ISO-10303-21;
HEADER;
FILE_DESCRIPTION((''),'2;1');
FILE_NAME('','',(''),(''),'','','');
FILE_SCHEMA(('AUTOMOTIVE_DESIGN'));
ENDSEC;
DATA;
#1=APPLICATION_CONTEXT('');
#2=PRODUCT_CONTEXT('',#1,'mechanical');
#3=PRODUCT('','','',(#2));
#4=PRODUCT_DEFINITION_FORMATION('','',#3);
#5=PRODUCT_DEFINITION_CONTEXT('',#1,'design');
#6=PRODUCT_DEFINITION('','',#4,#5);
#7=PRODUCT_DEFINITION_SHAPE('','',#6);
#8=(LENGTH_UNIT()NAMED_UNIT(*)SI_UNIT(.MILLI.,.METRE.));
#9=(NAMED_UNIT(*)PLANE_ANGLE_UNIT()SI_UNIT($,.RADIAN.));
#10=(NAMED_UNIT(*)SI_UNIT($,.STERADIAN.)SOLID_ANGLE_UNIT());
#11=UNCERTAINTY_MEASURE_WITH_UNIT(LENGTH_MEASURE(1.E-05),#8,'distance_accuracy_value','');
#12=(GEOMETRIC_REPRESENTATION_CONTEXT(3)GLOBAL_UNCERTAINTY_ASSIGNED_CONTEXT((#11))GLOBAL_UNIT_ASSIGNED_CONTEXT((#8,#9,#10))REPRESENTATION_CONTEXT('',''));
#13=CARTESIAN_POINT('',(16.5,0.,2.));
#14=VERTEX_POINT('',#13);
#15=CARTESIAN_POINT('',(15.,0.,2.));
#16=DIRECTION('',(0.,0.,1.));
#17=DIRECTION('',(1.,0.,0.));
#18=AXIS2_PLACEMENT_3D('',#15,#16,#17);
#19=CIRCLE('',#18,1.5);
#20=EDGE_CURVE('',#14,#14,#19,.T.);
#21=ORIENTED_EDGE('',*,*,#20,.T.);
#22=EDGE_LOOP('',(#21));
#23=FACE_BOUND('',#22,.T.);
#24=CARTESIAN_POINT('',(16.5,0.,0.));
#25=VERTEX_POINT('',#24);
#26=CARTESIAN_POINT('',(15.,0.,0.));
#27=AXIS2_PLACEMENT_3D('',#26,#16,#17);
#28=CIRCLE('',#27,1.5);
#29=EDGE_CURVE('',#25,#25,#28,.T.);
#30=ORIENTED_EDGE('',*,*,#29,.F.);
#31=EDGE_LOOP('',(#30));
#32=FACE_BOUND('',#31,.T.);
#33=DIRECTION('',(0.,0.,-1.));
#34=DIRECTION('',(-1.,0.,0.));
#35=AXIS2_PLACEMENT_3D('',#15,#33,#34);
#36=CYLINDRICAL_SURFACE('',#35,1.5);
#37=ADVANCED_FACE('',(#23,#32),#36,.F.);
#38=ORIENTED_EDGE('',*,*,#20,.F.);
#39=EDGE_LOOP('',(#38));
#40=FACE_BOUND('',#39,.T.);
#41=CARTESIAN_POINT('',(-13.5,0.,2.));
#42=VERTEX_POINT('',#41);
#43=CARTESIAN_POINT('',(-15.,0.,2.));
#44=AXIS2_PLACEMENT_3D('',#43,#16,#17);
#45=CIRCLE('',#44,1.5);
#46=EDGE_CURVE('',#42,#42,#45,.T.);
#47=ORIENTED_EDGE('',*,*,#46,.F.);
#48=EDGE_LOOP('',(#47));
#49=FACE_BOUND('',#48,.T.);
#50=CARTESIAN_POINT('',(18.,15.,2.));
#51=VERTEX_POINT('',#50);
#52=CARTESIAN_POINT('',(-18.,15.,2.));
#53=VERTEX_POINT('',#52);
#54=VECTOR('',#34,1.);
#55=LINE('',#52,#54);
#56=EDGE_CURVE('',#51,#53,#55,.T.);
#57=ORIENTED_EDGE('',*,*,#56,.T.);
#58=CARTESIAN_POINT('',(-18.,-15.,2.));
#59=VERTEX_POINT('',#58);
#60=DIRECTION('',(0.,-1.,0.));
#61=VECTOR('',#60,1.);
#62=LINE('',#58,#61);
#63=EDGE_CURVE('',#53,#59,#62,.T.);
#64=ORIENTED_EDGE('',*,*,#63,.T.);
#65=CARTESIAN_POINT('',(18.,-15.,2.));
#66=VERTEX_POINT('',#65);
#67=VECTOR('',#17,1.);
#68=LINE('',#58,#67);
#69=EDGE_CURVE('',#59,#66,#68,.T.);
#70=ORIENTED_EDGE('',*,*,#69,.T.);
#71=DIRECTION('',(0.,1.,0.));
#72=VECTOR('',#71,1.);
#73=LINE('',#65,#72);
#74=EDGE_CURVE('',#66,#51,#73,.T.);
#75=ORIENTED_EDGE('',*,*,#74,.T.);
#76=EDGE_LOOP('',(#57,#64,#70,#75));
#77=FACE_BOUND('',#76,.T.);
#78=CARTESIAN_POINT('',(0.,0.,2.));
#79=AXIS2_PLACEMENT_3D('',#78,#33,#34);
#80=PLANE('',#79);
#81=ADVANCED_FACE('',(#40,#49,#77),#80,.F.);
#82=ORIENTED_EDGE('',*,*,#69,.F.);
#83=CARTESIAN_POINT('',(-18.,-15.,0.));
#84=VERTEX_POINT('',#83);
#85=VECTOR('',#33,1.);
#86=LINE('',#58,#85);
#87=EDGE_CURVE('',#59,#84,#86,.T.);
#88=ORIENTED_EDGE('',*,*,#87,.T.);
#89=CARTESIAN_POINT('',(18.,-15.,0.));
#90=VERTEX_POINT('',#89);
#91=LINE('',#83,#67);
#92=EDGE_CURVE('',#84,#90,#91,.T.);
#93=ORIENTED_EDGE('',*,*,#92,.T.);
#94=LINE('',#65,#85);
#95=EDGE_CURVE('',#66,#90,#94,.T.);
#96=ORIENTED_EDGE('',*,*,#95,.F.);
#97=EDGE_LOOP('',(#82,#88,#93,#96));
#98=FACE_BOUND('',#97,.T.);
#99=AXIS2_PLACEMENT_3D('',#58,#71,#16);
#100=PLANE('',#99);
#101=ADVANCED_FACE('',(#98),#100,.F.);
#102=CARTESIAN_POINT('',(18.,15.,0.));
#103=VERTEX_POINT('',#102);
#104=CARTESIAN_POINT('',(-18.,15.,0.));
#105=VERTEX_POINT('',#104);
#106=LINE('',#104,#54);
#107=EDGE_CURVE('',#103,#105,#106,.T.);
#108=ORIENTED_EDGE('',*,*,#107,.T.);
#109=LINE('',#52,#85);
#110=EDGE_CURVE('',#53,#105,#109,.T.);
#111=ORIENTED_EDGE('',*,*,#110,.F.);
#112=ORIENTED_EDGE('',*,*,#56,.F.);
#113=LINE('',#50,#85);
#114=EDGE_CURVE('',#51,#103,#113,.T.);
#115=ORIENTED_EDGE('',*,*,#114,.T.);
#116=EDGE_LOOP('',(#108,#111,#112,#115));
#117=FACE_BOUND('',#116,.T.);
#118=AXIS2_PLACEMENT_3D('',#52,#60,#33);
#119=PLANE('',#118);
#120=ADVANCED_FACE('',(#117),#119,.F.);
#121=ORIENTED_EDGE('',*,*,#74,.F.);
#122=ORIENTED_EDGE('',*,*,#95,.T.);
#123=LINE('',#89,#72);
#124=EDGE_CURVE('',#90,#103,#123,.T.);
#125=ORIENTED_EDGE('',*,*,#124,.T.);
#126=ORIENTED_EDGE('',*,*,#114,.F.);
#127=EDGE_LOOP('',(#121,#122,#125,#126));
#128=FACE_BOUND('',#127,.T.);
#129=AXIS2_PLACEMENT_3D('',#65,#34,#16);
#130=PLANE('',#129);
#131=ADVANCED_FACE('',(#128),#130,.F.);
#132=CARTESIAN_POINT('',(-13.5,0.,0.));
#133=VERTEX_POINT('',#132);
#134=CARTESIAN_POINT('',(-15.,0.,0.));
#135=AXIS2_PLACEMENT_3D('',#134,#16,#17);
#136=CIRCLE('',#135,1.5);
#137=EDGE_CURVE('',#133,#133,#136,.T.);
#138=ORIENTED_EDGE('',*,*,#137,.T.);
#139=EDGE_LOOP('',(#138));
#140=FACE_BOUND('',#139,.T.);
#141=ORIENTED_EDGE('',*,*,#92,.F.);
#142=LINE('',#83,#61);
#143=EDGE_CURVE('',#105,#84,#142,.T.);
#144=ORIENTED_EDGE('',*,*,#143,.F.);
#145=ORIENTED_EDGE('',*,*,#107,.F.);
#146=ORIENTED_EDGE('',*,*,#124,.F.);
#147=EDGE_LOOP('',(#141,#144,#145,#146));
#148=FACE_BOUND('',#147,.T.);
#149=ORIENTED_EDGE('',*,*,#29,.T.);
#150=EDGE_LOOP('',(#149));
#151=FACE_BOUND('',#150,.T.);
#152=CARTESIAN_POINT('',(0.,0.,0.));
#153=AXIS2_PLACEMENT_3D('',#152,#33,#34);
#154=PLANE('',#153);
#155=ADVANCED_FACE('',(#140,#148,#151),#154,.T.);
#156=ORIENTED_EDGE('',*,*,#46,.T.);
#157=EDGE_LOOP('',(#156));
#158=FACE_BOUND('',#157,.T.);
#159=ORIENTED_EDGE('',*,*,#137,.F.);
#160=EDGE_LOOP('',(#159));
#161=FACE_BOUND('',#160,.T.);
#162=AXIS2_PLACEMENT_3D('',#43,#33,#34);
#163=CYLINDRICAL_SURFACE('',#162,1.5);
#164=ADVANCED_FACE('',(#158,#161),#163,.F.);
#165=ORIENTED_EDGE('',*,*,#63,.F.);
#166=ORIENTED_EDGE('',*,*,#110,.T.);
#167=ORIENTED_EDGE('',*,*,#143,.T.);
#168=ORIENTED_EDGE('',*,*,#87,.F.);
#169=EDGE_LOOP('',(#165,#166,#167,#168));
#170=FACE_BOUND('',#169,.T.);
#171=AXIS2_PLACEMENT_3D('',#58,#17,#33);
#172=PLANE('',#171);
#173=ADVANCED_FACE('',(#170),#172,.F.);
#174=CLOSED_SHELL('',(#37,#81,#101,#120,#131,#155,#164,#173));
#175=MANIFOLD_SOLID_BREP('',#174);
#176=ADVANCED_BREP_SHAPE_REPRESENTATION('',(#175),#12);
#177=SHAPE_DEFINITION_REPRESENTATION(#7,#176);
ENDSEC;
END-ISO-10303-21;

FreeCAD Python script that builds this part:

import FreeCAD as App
import Part
import Sketcher

V = App.Vector


def add_polygon(sketch, points):
    """Adds a closed chain of lines whose ends are joined by coincident constraints."""
    first, n = sketch.GeometryCount, len(points)
    for a, b in zip(points, points[1:] + points[:1]):
        sketch.addGeometry(Part.LineSegment(App.Vector(*a, 0), App.Vector(*b, 0)), False)
    for i in range(n):
        sketch.addConstraint(Sketcher.Constraint("Coincident", first + i, 2, first + (i + 1) % n, 1))

doc = App.newDocument("Part")
body = doc.addObject("PartDesign::Body", "Body")

# Sketch on XY plane
sketch1 = body.newObject("Sketcher::SketchObject", "Sketch")
sketch1.AttachmentSupport = (doc.getObject("XY_Plane"), [""])
sketch1.MapMode = "FlatFace"
add_polygon(sketch1, [(-18, 15), (-18, -15), (18, -15), (18, 15)])  # lines 0-3
sketch1.addGeometry(Part.Circle(V(-15, 0, 0), V(0, 0, 1), 1.5), False)  # 4
sketch1.addGeometry(Part.Circle(V(15, 0, 0), V(0, 0, 1), 1.5), False)  # 5
sketch1.addConstraint([
    Sketcher.Constraint("Vertical", 0),
    Sketcher.Constraint("Horizontal", 1),
    Sketcher.Constraint("Vertical", 2),
    Sketcher.Constraint("Horizontal", 3),
    Sketcher.Constraint("Equal", 4, 5),
    Sketcher.Constraint("Symmetric", 4, 3, 5, 3, -1, 1),
    Sketcher.Constraint("Symmetric", 0, 2, 2, 2, -1, 1),
    Sketcher.Constraint("PointOnObject", 4, 3, -1),
    Sketcher.Constraint("Diameter", 4, 3.0),
    Sketcher.Constraint("DistanceX", 1, 1, 1, 2, 36.0),
    Sketcher.Constraint("DistanceY", 0, 2, 0, 1, 30.0),
    Sketcher.Constraint("DistanceX", 4, 3, -1, 1, 15.0),
])
pad1 = body.newObject("PartDesign::Pad", "Pad")
pad1.Profile = sketch1
pad1.Length = 2

doc.recompute()
